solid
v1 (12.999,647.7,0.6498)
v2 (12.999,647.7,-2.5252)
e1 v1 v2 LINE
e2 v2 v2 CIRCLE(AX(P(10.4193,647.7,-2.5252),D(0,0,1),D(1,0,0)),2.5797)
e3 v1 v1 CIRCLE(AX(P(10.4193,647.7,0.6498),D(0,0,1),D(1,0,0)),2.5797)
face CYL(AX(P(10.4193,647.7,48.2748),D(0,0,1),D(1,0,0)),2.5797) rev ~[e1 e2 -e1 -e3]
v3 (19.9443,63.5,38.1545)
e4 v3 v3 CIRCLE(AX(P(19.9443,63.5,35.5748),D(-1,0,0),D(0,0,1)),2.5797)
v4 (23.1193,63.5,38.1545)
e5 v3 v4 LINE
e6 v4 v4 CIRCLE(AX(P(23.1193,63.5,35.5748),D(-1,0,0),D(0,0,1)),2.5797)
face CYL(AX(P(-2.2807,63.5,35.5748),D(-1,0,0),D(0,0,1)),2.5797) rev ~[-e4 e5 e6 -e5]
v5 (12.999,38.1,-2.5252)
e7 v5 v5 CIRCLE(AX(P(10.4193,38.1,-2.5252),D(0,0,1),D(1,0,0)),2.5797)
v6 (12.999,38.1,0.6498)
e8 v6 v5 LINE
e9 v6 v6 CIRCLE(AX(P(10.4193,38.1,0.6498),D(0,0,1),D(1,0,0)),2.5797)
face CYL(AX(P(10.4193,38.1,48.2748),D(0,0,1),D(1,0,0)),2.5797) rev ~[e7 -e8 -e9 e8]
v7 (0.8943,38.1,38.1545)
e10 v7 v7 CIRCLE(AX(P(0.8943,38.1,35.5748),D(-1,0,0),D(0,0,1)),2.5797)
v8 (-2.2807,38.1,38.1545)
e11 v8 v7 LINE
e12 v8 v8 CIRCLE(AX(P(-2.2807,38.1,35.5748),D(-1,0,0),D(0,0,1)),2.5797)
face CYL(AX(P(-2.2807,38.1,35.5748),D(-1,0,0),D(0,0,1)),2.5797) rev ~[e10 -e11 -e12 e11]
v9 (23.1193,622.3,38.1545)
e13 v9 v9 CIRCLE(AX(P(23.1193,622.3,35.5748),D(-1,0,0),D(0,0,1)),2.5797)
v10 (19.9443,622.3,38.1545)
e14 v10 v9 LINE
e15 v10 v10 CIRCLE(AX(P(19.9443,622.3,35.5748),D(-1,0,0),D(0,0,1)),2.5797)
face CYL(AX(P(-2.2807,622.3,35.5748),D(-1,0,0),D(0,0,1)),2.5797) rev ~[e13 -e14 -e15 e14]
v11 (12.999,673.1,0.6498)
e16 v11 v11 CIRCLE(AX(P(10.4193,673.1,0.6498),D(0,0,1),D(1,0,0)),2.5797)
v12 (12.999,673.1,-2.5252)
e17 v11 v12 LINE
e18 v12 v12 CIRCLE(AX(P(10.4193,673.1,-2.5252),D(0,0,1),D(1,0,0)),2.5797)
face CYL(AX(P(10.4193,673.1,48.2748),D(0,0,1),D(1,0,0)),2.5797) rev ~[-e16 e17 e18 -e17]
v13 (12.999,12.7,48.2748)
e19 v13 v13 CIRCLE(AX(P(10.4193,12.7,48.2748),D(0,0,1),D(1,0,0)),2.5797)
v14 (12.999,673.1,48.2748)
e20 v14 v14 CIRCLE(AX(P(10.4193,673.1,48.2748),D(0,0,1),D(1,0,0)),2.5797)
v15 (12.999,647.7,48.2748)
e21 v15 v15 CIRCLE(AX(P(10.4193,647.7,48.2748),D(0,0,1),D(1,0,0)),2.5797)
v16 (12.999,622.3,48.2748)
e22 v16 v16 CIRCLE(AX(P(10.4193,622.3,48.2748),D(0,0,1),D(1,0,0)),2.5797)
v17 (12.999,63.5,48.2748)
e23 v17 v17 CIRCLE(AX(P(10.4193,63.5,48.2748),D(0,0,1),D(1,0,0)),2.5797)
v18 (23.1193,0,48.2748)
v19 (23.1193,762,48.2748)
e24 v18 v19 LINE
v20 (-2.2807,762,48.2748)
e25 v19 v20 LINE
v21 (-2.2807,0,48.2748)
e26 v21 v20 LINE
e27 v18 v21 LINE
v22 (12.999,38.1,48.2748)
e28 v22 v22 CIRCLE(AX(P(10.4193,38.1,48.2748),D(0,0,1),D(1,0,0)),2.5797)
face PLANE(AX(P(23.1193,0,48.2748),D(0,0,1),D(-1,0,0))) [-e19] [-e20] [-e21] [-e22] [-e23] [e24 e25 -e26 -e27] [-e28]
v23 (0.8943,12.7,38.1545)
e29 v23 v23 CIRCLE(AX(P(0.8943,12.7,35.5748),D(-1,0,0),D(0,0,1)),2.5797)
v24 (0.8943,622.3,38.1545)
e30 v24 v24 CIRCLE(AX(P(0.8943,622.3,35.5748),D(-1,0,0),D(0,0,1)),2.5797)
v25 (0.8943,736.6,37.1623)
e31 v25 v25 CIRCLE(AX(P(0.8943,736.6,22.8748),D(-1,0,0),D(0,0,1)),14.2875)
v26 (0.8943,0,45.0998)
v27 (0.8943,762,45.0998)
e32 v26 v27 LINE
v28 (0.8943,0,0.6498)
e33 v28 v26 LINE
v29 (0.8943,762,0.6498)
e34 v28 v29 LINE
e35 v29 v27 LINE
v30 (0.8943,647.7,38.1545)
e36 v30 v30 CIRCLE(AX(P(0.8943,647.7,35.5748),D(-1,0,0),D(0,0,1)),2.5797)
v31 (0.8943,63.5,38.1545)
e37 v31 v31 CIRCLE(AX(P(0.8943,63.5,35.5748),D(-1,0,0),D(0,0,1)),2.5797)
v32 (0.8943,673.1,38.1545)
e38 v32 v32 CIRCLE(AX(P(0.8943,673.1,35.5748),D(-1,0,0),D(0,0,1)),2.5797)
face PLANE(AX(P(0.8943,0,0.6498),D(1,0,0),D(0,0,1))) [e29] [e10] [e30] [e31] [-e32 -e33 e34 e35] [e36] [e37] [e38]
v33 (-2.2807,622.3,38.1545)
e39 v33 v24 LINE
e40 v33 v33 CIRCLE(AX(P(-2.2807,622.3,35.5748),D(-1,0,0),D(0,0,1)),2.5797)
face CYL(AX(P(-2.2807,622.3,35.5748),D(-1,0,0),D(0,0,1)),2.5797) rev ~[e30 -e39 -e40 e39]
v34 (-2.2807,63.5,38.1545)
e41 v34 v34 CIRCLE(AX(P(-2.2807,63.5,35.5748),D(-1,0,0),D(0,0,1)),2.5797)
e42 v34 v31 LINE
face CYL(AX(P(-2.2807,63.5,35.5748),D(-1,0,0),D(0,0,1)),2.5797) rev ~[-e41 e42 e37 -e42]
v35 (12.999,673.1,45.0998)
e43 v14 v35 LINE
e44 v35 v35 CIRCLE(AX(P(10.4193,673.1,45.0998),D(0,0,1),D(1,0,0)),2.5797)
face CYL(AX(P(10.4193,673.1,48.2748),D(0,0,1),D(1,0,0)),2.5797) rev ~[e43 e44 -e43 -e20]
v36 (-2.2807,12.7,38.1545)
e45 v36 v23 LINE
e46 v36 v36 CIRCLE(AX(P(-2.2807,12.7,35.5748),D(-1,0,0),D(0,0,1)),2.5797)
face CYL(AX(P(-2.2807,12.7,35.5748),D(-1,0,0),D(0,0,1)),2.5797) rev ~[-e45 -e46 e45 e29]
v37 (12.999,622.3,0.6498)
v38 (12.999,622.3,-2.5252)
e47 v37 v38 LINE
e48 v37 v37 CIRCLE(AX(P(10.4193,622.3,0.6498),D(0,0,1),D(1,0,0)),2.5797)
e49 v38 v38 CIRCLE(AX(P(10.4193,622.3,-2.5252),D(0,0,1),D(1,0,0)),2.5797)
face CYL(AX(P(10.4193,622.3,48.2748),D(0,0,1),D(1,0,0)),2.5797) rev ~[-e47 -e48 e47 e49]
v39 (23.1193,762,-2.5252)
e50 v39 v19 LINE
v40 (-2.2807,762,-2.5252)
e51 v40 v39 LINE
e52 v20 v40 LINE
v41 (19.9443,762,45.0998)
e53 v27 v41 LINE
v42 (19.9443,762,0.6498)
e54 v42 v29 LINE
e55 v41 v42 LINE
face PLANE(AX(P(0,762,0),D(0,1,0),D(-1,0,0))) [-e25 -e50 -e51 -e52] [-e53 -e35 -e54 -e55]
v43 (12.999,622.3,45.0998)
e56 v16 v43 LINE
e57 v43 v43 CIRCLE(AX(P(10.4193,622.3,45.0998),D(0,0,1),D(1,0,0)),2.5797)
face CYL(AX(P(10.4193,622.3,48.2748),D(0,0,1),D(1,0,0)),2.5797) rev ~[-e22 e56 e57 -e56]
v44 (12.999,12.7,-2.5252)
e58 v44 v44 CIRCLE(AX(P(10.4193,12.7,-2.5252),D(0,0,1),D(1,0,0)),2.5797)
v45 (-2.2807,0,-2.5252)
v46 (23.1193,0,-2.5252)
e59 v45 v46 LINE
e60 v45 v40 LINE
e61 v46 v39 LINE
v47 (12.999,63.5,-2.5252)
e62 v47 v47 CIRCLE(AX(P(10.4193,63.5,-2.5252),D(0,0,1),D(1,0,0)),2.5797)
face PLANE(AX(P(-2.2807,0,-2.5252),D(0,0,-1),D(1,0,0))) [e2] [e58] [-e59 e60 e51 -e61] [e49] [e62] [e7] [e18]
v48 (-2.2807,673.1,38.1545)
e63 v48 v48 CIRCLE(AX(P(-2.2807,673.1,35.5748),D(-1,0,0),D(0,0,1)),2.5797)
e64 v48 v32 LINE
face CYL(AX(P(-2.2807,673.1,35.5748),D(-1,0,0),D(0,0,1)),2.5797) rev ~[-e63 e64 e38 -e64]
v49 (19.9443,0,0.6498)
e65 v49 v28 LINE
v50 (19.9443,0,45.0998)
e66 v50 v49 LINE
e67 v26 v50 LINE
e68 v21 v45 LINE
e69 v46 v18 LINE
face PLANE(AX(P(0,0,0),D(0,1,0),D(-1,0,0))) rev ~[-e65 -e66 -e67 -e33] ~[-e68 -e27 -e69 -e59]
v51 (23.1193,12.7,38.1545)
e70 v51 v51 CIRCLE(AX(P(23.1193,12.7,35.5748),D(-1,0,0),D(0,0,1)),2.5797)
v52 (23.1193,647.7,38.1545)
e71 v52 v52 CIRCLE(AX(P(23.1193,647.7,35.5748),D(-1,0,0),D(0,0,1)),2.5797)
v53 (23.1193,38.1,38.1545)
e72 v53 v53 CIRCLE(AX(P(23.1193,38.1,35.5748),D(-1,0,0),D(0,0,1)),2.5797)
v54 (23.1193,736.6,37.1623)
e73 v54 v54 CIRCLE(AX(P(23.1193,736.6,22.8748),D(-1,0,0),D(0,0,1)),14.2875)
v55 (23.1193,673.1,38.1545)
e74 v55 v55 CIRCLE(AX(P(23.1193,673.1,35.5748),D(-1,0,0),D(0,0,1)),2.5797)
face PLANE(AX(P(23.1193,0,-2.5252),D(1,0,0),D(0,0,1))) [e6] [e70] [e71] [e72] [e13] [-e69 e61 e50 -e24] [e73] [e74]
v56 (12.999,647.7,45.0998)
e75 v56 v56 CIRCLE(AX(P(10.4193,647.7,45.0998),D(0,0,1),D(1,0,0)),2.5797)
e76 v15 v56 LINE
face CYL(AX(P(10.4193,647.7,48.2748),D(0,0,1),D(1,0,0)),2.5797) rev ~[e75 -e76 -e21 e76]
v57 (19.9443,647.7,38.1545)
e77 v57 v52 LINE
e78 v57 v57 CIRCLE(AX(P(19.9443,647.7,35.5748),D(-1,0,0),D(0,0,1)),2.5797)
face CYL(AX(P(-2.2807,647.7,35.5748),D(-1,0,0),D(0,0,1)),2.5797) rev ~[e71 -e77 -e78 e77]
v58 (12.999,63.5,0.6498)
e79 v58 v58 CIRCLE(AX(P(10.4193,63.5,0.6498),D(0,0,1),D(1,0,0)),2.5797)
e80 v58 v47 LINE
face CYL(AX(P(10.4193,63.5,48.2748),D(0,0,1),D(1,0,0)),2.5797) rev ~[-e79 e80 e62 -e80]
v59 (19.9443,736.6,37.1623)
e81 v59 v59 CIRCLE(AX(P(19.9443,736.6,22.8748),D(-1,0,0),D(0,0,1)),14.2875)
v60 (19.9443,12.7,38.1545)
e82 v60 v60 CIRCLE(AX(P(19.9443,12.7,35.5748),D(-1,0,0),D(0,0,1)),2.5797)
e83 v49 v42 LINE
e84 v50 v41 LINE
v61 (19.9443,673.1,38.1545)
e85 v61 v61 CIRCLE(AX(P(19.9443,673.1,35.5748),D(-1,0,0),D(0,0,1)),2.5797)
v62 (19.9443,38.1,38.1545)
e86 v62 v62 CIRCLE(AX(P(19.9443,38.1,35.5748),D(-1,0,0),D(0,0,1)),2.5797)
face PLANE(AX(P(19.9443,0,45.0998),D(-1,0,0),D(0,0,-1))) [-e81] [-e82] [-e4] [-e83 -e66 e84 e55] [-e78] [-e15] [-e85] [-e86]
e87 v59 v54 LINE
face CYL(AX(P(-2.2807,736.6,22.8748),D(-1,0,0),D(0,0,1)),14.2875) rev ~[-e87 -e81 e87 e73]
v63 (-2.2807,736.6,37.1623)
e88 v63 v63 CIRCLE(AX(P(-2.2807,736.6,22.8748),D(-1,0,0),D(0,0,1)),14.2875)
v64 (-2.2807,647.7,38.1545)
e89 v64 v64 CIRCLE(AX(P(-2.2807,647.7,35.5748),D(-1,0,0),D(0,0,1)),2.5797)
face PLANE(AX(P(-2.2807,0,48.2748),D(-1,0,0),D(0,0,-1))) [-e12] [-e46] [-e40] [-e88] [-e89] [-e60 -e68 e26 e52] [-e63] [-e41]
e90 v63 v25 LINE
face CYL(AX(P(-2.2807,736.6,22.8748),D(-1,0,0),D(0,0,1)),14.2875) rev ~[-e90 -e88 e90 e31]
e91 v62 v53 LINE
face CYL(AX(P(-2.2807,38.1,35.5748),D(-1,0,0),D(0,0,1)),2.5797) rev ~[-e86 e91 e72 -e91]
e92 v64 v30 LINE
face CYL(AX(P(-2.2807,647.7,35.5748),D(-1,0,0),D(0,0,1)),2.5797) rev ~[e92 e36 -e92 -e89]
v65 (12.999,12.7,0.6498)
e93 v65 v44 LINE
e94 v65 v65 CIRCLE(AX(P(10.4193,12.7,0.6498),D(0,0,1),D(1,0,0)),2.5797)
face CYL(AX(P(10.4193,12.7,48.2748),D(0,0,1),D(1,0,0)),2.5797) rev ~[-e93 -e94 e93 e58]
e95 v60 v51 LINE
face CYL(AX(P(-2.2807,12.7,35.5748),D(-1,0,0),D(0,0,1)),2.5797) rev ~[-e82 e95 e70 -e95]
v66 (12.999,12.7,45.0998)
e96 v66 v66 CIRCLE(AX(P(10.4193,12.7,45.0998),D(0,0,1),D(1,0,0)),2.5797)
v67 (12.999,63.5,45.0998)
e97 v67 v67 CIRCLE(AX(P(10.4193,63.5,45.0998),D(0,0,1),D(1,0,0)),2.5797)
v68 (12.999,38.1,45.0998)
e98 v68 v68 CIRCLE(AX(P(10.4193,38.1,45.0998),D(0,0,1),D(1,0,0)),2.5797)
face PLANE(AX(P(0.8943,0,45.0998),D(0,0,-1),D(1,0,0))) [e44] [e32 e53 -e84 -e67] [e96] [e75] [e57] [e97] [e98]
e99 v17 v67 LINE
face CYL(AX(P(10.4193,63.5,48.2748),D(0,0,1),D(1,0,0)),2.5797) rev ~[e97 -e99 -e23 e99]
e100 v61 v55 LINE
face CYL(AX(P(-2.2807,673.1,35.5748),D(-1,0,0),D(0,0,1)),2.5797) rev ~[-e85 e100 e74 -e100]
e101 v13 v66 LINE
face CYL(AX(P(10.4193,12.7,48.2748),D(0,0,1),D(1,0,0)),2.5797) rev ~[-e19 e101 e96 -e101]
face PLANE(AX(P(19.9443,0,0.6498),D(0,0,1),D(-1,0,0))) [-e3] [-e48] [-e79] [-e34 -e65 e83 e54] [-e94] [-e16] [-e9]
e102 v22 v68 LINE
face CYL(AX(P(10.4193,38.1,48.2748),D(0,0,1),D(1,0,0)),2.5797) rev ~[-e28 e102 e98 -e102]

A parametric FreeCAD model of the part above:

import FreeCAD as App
import Part
import Sketcher
Q = App.Units.Quantity


def add_polygon(sketch, points):
    """Adds a closed chain of lines whose ends are joined by coincident constraints."""
    first, n = sketch.GeometryCount, len(points)
    for a, b in zip(points, points[1:] + points[:1]):
        sketch.addGeometry(Part.LineSegment(App.Vector(*a, 0), App.Vector(*b, 0)), False)
    for i in range(n):
        sketch.addConstraint(Sketcher.Constraint("Coincident", first + i, 2, first + (i + 1) % n, 1))

doc = App.newDocument("Part")
params = doc.addObject("Spreadsheet::Sheet", "Params")
for row, (alias, value) in enumerate([
    ("sketch1_width", "1 in"),
    ("sketch1_height", "2 in"),
    ("pad1_length", "30 in"),
    ("sketch2_diameter", "0.203126 in"),
    ("pocket1_length", "30 in"),
    ("sketch3_diameter", "0.203126 in"),
    ("pocket2_length", "30 in"),
    ("sketch4_diameter", "1.125 in"),
    ("pocket3_length", "12 in"),
], start=1):
    params.set(f"A{row}", alias)
    params.set(f"B{row}", "=" + value)
    params.setAlias(f"B{row}", alias)

body = doc.addObject("PartDesign::Body", "Body")

sketch1 = body.newObject("Sketcher::SketchObject", "Sketch")
sketch1.AttachmentSupport = (doc.getObject("XZ_Plane"), [""])
sketch1.MapMode = "FlatFace"
add_polygon(sketch1, [(23.1193, -2.5252), (-2.2807, -2.5252), (-2.2807, 48.2748), (23.1193, 48.2748)])
add_polygon(sketch1, [(0.8943, 0.6498), (19.9443, 0.6498), (19.9443, 45.0998), (0.8943, 45.0998)])
sketch1.addConstraint([
    Sketcher.Constraint("Horizontal", 0),
    Sketcher.Constraint("Vertical", 1),
    Sketcher.Constraint("Horizontal", 2),
    Sketcher.Constraint("Vertical", 3),
    Sketcher.Constraint("Horizontal", 4),
    Sketcher.Constraint("Vertical", 5),
    Sketcher.Constraint("Horizontal", 6),
    Sketcher.Constraint("Vertical", 7),
    Sketcher.Constraint("DistanceX", 0, 2, 0, 1, Q("1 in")),
    Sketcher.Constraint("DistanceY", 1, 1, 1, 2, Q("2 in")),
    Sketcher.Constraint("DistanceX", 4, 2, 3, 2, Q("0.125 in")),
    Sketcher.Constraint("DistanceY", 3, 2, 4, 2, Q("0.125 in")),
    Sketcher.Constraint("DistanceY", 5, 2, 2, 2, Q("0.125 in")),
    Sketcher.Constraint("DistanceX", 1, 2, 6, 2, Q("0.125 in")),
    Sketcher.Constraint("DistanceX", 0, 2, -1, 1, Q("0.0898 in")),
    Sketcher.Constraint("DistanceY", 0, 2, -1, 1, 2.5252),
])
sketch1.setExpression("Constraints[16]", "Params.sketch1_width")
sketch1.setExpression("Constraints[17]", "Params.sketch1_height")
pad1 = body.newObject("PartDesign::Pad", "Pad")
pad1.Profile = sketch1
pad1.setExpression("Length", "Params.pad1_length")
pad1.Reversed = True

sketch2 = body.newObject("Sketcher::SketchObject", "Sketch001")
sketch2.AttachmentSupport = (doc.getObject("XY_Plane"), [""])
sketch2.MapMode = "FlatFace"
sketch2.AttachmentOffset = App.Placement(App.Vector(0, 0, 48.2748), App.Rotation())
sketch2.addGeometry([
    Part.Circle(App.Vector(10.4193, 63.5, 0), App.Vector(0, 0, 1), 2.5797),
    Part.Circle(App.Vector(10.4193, 38.1, 0), App.Vector(0, 0, 1), 2.5797),
    Part.Circle(App.Vector(10.4193, 12.7, 0), App.Vector(0, 0, 1), 2.5797),
    Part.Circle(App.Vector(10.4193, 673.1, 0), App.Vector(0, 0, 1), 2.5797),
    Part.Circle(App.Vector(10.4193, 647.7, 0), App.Vector(0, 0, 1), 2.5797),
    Part.Circle(App.Vector(10.4193, 622.3, 0), App.Vector(0, 0, 1), 2.5797),
], False)
sketch2.addConstraint([
    Sketcher.Constraint("Equal", 0, 1),
    Sketcher.Constraint("Equal", 1, 2),
    Sketcher.Constraint("Equal", 2, 3),
    Sketcher.Constraint("Equal", 3, 4),
    Sketcher.Constraint("Equal", 4, 5),
    Sketcher.Constraint("Vertical", 0, 3, 1, 3),
    Sketcher.Constraint("Vertical", 1, 3, 2, 3),
    Sketcher.Constraint("Vertical", 2, 3, 3, 3),
    Sketcher.Constraint("Vertical", 3, 3, 4, 3),
    Sketcher.Constraint("Vertical", 4, 3, 5, 3),
    Sketcher.Constraint("Diameter", 0, Q("0.203126 in")),
    Sketcher.Constraint("DistanceY", 1, 3, 0, 3, Q("1 in")),
    Sketcher.Constraint("DistanceY", 2, 3, 1, 3, Q("1 in")),
    Sketcher.Constraint("DistanceY", 4, 3, 3, 3, Q("1 in")),
    Sketcher.Constraint("DistanceY", 5, 3, 4, 3, Q("1 in")),
    Sketcher.Constraint("DistanceY", -1, 1, 2, 3, Q("0.5 in")),
    Sketcher.Constraint("DistanceY", 0, 3, 3, 3, Q("24 in")),
    Sketcher.Constraint("DistanceX", -1, 1, 0, 3, Q("0.4102 in")),
])
sketch2.setExpression("Constraints[10]", "Params.sketch2_diameter")
pocket1 = body.newObject("PartDesign::Pocket", "Pocket")
pocket1.Profile = sketch2
pocket1.setExpression("Length", "Params.pocket1_length")

sketch3 = body.newObject("Sketcher::SketchObject", "Sketch002")
sketch3.AttachmentSupport = (doc.getObject("YZ_Plane"), [""])
sketch3.MapMode = "FlatFace"
sketch3.AttachmentOffset = App.Placement(App.Vector(0, 0, -0.0897913 * 25.4), App.Rotation())
sketch3.addGeometry([
    Part.Circle(App.Vector(63.5, 35.5748, 0), App.Vector(0, 0, 1), 2.5797),
    Part.Circle(App.Vector(38.1, 35.5748, 0), App.Vector(0, 0, 1), 2.5797),
    Part.Circle(App.Vector(12.7, 35.5748, 0), App.Vector(0, 0, 1), 2.5797),
    Part.Circle(App.Vector(647.7, 35.5748, 0), App.Vector(0, 0, 1), 2.5797),
    Part.Circle(App.Vector(622.3, 35.5748, 0), App.Vector(0, 0, 1), 2.5797),
    Part.Circle(App.Vector(673.1, 35.5748, 0), App.Vector(0, 0, 1), 2.5797),
], False)
sketch3.addConstraint([
    Sketcher.Constraint("Equal", 0, 1),
    Sketcher.Constraint("Equal", 1, 2),
    Sketcher.Constraint("Equal", 2, 3),
    Sketcher.Constraint("Equal", 3, 4),
    Sketcher.Constraint("Equal", 4, 5),
    Sketcher.Constraint("Horizontal", 0, 3, 1, 3),
    Sketcher.Constraint("Horizontal", 1, 3, 2, 3),
    Sketcher.Constraint("Horizontal", 2, 3, 3, 3),
    Sketcher.Constraint("Horizontal", 3, 3, 4, 3),
    Sketcher.Constraint("Horizontal", 4, 3, 5, 3),
    Sketcher.Constraint("Diameter", 0, Q("0.203126 in")),
    Sketcher.Constraint("DistanceX", -1, 1, 2, 3, Q("0.5 in")),
    Sketcher.Constraint("DistanceX", 1, 3, 0, 3, Q("1 in")),
    Sketcher.Constraint("DistanceX", 2, 3, 1, 3, Q("1 in")),
    Sketcher.Constraint("DistanceX", 0, 3, 3, 3, Q("23 in")),
    Sketcher.Constraint("DistanceX", 4, 3, 3, 3, Q("1 in")),
    Sketcher.Constraint("DistanceX", 3, 3, 5, 3, Q("1 in")),
    Sketcher.Constraint("DistanceY", -1, 1, 0, 3, 35.5748),
])
sketch3.setExpression("Constraints[10]", "Params.sketch3_diameter")
pocket2 = body.newObject("PartDesign::Pocket", "Pocket001")
pocket2.Profile = sketch3
pocket2.setExpression("Length", "Params.pocket2_length")
pocket2.Reversed = True

sketch4 = body.newObject("Sketcher::SketchObject", "Sketch003")
sketch4.AttachmentSupport = (doc.getObject("YZ_Plane"), [""])
sketch4.MapMode = "FlatFace"
sketch4.AttachmentOffset = App.Placement(App.Vector(0, 0, -0.0897913 * 25.4), App.Rotation())
sketch4.addGeometry(Part.Circle(App.Vector(736.6, 22.8748, 0), App.Vector(0, 0, 1), 14.2875), False)
sketch4.addConstraint([
    Sketcher.Constraint("Diameter", 0, Q("1.125 in")),
    Sketcher.Constraint("DistanceX", -1, 1, 0, 3, Q("29 in")),
    Sketcher.Constraint("DistanceY", -1, 1, 0, 3, 22.8748),
])
sketch4.setExpression("Constraints[0]", "Params.sketch4_diameter")
pocket3 = body.newObject("PartDesign::Pocket", "Pocket002")
pocket3.Profile = sketch4
pocket3.setExpression("Length", "Params.pocket3_length")
pocket3.Reversed = True

doc.recompute()
